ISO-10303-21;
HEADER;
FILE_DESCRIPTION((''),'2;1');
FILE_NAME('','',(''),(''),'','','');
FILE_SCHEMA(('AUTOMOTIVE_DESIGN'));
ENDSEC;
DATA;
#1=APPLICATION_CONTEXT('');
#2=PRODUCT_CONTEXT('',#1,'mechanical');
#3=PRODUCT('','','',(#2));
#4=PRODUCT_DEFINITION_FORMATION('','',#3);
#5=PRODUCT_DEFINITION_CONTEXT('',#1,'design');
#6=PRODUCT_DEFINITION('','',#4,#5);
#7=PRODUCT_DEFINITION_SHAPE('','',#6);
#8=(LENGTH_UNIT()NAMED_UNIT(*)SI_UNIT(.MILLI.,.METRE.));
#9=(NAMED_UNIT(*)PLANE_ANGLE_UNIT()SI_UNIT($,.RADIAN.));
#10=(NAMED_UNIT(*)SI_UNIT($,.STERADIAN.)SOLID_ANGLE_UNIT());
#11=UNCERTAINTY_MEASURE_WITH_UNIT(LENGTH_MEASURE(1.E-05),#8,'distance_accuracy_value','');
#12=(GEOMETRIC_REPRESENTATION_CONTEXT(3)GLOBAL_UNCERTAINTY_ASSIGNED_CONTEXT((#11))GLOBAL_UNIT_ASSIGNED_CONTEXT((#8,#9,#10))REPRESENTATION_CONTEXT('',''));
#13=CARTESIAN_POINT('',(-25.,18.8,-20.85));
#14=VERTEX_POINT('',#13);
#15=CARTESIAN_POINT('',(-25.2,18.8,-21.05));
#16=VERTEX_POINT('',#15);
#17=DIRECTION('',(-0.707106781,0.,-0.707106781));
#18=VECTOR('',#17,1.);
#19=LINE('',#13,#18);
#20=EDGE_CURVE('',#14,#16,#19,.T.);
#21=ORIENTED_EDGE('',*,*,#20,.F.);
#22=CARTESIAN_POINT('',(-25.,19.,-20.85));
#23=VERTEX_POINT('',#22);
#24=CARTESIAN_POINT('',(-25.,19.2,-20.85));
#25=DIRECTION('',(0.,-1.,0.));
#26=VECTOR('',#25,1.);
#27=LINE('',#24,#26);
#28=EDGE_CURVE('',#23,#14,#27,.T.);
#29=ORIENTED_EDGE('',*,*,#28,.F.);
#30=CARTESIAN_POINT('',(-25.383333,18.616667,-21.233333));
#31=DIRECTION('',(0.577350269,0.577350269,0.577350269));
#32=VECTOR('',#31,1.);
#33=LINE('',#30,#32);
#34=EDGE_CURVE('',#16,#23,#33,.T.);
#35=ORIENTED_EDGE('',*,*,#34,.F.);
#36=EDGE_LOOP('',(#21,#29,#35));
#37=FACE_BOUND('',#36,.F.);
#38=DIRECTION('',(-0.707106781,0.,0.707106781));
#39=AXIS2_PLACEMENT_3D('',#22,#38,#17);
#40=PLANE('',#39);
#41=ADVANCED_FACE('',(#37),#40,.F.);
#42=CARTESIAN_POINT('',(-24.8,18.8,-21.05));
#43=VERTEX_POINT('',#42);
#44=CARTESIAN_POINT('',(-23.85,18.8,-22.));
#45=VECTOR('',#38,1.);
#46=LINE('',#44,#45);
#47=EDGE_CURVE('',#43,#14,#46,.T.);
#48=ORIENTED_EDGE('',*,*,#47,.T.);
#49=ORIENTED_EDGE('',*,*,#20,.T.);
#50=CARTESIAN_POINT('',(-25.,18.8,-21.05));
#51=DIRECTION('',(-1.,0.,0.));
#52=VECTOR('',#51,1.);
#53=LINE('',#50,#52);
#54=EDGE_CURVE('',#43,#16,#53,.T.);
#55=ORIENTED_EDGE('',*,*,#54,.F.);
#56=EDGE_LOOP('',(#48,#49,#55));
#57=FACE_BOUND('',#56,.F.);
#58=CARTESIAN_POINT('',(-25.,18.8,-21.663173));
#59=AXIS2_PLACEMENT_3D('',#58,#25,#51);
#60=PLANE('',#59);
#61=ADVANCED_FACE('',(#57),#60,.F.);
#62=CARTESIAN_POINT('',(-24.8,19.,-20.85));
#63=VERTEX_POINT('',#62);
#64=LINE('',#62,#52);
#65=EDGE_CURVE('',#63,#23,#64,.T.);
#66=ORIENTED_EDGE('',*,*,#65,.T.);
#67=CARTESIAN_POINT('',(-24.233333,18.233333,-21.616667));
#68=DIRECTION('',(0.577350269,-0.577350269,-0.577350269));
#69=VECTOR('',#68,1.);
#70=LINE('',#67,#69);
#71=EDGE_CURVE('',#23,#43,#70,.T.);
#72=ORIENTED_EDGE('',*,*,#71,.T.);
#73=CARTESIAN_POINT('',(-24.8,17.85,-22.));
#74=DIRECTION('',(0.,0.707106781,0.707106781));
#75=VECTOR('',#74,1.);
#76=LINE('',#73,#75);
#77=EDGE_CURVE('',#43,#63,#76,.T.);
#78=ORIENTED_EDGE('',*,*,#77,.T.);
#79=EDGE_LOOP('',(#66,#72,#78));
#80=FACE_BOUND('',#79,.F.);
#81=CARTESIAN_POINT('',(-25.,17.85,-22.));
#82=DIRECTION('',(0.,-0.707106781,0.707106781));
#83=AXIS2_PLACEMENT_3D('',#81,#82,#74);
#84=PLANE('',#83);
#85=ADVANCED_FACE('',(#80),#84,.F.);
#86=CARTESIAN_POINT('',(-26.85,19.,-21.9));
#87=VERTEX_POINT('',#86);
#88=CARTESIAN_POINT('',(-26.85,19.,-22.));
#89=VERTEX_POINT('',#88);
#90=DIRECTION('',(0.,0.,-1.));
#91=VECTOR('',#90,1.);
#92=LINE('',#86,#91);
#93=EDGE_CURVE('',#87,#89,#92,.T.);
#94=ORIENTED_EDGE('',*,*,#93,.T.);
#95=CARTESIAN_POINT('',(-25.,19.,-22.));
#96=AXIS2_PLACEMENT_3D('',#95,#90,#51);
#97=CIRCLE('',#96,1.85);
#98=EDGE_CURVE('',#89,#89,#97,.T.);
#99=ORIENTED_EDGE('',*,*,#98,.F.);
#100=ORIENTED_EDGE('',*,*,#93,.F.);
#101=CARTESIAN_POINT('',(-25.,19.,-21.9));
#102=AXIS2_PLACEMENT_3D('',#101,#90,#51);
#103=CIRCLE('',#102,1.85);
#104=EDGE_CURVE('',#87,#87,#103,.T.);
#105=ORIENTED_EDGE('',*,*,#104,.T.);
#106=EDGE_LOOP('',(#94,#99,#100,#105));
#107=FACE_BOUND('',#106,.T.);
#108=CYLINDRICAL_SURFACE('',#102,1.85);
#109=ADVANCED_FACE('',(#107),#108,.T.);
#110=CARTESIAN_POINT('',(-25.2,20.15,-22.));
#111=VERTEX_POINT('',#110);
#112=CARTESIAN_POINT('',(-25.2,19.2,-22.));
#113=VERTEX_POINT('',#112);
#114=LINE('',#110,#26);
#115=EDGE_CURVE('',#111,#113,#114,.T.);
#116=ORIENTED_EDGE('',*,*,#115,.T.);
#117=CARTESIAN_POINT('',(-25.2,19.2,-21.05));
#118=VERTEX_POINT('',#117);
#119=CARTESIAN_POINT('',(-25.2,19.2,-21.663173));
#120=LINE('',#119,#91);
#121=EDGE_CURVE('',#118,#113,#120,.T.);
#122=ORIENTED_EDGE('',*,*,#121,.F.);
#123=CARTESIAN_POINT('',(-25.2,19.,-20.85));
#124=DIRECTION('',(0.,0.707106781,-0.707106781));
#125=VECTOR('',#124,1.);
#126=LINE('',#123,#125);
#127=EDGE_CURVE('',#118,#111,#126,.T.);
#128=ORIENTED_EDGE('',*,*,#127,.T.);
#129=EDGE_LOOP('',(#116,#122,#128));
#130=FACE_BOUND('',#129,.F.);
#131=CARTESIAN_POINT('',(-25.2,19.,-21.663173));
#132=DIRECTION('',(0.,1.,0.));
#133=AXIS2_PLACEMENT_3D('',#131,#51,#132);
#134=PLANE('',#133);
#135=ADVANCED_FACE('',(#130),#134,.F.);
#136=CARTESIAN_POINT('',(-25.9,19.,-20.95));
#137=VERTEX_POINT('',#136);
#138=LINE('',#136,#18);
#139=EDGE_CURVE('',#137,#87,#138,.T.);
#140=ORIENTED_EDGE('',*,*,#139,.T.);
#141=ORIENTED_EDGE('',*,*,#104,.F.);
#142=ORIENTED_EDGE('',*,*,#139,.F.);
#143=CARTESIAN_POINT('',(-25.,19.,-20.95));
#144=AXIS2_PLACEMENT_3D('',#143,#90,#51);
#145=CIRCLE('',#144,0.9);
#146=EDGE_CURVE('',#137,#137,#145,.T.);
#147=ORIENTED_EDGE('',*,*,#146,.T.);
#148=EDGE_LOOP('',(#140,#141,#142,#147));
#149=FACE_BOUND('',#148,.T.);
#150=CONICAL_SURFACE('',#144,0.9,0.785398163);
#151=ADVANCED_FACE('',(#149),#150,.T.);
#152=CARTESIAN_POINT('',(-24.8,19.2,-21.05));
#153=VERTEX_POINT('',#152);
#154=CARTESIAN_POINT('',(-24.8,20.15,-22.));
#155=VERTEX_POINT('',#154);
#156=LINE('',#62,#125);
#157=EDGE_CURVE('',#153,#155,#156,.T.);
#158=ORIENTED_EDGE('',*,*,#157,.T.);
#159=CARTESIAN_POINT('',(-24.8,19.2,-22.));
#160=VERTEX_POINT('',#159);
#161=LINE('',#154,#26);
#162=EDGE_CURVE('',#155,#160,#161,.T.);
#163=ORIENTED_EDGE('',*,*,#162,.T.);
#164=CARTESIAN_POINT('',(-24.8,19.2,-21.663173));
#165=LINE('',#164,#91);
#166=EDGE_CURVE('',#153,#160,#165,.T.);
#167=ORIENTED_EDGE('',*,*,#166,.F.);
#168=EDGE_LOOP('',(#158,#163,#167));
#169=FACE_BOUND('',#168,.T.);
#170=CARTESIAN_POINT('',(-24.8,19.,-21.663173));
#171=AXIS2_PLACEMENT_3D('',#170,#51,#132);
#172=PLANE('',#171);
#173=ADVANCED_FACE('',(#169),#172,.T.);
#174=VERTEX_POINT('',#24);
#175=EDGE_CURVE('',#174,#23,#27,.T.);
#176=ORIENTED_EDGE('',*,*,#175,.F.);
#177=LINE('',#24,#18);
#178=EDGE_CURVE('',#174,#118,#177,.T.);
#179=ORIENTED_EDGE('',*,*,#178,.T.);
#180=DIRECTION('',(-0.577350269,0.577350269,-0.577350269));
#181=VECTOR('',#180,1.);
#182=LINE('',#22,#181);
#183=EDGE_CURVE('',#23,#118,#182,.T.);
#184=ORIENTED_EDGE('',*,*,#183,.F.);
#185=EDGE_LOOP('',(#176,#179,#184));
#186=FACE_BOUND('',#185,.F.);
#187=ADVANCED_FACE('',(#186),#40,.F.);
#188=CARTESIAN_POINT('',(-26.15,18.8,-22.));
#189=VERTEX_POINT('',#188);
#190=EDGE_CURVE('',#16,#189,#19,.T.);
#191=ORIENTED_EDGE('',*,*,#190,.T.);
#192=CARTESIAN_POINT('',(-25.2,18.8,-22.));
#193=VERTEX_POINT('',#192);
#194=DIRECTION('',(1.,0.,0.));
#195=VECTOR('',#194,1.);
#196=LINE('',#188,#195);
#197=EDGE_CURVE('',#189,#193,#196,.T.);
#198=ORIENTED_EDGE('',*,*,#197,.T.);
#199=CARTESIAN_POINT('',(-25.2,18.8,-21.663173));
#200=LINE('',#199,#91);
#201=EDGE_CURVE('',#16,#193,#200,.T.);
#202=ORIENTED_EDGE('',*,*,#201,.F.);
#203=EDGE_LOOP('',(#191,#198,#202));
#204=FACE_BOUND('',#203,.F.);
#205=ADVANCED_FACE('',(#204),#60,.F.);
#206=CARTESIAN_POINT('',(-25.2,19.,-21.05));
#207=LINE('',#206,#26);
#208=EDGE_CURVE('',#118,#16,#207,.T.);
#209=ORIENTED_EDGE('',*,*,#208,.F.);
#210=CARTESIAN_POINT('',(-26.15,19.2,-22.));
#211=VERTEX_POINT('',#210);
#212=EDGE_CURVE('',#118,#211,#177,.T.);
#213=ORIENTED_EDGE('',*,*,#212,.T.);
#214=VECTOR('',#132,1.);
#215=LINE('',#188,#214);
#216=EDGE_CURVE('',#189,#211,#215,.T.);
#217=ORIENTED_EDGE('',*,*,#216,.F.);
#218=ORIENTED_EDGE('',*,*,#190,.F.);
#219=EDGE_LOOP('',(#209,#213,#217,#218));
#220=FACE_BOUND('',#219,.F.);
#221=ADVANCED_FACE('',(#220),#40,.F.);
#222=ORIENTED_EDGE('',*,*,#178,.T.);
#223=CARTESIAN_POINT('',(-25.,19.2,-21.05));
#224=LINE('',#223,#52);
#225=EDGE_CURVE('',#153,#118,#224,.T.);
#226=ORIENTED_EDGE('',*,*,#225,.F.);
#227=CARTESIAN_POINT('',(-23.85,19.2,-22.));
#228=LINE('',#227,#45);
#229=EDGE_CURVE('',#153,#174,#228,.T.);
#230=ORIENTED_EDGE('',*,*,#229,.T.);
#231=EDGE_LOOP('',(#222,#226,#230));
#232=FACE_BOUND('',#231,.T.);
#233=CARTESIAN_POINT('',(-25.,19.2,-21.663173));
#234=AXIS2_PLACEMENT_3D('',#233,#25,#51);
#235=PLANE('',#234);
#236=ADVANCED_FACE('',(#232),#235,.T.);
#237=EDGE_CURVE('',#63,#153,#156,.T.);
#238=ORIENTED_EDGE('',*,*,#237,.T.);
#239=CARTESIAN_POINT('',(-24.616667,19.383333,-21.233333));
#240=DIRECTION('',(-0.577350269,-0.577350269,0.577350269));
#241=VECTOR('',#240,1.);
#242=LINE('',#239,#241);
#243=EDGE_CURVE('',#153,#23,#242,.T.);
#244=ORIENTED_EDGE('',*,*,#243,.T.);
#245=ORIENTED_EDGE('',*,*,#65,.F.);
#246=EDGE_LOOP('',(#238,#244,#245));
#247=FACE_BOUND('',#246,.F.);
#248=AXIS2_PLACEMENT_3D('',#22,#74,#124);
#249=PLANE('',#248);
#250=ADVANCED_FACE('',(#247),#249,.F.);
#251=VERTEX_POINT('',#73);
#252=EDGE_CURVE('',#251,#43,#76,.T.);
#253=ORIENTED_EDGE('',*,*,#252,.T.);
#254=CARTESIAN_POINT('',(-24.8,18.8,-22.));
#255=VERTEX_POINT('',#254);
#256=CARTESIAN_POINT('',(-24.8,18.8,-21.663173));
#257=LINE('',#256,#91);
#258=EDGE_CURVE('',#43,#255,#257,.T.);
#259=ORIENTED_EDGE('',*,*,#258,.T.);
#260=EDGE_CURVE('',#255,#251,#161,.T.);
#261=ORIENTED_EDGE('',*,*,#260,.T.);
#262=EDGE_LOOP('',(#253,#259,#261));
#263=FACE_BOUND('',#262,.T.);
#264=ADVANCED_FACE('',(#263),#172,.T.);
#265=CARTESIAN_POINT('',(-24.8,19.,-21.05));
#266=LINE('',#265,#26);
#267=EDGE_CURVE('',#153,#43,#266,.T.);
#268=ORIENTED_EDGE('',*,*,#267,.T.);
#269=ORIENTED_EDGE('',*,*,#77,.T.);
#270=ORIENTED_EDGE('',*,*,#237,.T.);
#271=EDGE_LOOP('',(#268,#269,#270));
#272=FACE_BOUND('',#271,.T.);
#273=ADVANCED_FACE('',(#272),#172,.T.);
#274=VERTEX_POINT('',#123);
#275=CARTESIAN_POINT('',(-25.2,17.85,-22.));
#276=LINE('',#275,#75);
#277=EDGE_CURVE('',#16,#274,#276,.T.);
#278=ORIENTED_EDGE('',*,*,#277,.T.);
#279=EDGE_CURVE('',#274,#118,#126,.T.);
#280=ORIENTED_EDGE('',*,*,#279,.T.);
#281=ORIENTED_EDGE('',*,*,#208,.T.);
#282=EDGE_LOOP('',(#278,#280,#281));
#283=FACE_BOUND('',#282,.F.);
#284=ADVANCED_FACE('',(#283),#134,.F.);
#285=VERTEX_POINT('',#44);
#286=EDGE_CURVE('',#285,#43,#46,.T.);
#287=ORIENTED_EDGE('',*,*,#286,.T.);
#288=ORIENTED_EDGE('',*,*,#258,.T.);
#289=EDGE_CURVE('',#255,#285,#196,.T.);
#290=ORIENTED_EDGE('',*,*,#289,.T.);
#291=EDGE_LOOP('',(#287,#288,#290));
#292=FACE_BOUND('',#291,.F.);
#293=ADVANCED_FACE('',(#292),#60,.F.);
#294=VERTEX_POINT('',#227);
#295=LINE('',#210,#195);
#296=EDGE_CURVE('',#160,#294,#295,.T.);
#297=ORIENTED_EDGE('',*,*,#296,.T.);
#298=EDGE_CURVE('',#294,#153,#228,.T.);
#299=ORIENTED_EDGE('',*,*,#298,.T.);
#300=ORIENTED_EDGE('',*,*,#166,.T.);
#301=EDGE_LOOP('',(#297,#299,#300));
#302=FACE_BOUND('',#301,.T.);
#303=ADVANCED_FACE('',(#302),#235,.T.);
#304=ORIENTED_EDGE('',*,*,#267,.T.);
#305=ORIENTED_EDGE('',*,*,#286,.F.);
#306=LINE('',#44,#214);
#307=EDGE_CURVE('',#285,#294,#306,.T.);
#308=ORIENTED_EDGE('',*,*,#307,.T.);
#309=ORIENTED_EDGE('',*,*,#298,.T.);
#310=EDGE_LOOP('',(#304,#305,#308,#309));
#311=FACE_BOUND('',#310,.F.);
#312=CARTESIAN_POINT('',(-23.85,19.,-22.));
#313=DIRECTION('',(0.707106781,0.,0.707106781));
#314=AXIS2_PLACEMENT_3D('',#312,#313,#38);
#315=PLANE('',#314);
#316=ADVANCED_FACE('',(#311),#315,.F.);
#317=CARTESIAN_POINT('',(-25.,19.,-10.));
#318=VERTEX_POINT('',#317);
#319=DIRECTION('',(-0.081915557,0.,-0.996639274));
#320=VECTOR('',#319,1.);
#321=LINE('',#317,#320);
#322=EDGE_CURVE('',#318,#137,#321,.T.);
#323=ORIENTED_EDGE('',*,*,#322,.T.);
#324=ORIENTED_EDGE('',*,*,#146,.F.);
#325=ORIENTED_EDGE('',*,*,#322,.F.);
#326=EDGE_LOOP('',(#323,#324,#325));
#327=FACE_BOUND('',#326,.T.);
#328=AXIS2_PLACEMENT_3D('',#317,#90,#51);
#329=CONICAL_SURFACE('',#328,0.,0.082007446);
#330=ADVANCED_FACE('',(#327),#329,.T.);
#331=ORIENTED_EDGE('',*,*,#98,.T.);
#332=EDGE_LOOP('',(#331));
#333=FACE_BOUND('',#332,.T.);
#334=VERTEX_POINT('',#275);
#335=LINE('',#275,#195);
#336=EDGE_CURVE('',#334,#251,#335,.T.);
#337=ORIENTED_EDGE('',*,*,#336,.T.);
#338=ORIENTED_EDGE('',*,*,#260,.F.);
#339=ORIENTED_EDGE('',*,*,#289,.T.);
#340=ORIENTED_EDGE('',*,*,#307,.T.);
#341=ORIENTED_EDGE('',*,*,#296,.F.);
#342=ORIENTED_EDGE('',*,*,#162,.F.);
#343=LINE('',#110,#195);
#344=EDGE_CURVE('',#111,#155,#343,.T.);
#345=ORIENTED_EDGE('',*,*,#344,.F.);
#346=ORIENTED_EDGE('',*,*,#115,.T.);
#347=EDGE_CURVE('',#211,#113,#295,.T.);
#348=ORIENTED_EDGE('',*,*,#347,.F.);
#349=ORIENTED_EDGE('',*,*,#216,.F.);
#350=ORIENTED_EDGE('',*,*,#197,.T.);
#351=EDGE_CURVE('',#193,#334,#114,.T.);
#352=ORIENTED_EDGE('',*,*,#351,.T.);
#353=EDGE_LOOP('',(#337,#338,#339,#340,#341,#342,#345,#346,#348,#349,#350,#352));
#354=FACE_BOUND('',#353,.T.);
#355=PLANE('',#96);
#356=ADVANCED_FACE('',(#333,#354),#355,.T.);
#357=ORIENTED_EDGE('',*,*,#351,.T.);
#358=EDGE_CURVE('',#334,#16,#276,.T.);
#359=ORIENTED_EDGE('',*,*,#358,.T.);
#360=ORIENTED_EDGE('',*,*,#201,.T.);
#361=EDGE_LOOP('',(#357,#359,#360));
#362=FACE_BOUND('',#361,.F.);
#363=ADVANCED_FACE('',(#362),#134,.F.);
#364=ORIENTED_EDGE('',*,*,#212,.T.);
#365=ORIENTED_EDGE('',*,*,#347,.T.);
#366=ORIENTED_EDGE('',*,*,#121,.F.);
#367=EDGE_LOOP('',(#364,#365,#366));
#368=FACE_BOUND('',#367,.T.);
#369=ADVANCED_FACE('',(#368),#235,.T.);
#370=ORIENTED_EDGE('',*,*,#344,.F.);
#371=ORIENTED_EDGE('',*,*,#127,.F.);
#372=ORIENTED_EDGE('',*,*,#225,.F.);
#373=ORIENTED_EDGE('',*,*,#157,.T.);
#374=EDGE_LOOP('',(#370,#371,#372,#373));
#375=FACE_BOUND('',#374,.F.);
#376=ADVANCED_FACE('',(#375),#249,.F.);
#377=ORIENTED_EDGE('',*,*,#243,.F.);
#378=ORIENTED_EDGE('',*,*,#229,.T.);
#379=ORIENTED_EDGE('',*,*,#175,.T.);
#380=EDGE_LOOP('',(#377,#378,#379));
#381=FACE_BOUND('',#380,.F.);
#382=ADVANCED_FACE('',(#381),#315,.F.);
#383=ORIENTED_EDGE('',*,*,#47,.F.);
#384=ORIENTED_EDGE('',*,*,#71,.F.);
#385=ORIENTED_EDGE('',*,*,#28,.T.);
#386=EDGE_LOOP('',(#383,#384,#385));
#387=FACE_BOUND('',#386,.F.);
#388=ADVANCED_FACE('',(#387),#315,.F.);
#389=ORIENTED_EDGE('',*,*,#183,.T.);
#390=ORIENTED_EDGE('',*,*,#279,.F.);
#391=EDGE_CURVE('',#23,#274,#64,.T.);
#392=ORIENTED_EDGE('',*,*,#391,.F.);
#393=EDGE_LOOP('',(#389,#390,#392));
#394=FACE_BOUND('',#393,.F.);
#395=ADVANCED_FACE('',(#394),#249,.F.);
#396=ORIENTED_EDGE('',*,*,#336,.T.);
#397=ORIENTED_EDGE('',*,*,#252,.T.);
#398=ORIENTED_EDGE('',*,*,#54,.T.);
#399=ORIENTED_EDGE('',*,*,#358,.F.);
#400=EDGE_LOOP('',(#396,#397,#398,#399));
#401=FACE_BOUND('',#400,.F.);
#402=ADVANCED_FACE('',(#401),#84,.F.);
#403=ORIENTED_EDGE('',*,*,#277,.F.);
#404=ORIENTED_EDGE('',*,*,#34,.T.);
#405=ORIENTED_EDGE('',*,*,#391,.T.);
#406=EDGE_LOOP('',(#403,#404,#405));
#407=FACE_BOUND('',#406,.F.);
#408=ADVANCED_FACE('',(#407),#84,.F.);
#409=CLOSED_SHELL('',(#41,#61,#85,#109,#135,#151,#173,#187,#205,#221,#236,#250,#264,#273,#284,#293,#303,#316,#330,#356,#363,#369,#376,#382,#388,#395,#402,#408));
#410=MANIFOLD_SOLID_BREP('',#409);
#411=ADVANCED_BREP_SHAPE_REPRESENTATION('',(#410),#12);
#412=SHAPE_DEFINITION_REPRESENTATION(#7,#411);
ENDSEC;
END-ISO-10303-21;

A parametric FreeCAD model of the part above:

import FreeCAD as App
import Part
import Sketcher
from FreeCAD import Vector
Q = App.Units.Quantity

doc = App.newDocument("Part")
body = doc.addObject("PartDesign::Body", "Body")

sketch1 = body.newObject("Sketcher::SketchObject", "Sketch")
sketch1.AttachmentSupport = (doc.getObject("XZ_Plane"), [""])
sketch1.MapMode = "FlatFace"
sketch1.addGeometry([
    Part.LineSegment(Vector(0, 0, 0), Vector(0, -12, 0)),
    Part.LineSegment(Vector(0, -12, 0), Vector(0.9, -1.05, 0)),
    Part.LineSegment(Vector(0.9, -1.05, 0), Vector(1.85, -0.1, 0)),
    Part.LineSegment(Vector(1.85, -0.1, 0), Vector(1.85, 0, 0)),
    Part.LineSegment(Vector(1.85, 0, 0), Vector(0, 0, 0)),
], False)
sketch1.addConstraint([
    Sketcher.Constraint("Coincident", 0, 2, 1, 1),
    Sketcher.Constraint("Coincident", 1, 2, 2, 1),
    Sketcher.Constraint("Coincident", 2, 2, 3, 1),
    Sketcher.Constraint("Coincident", 3, 2, 4, 1),
    Sketcher.Constraint("Coincident", 4, 2, 0, 1),
    Sketcher.Constraint("Vertical", 0),
    Sketcher.Constraint("Vertical", 3),
    Sketcher.Constraint("Horizontal", 4),
    Sketcher.Constraint("Coincident", 4, 2, -1, 1),
    Sketcher.Constraint("DistanceY", 0, 2, 0, 1, Q("12 mm")),
    Sketcher.Constraint("Angle", 2, Q("45 deg")),
    Sketcher.Constraint("DistanceY", 3, 1, 3, 2, Q("0.1 mm")),
    Sketcher.Constraint("DistanceX", 4, 2, 4, 1, Q("1.85 mm")),
    Sketcher.Constraint("DistanceX", -1, 1, 1, 2, Q("0.9 mm")),
])
revolution = body.newObject("PartDesign::Revolution", "Revolution")
revolution.Profile = sketch1
revolution.ReferenceAxis = (sketch1, ["V_Axis"])
revolution.Angle = 360

sketch2 = body.newObject("Sketcher::SketchObject", "Sketch001")
sketch2.AttachmentSupport = (doc.getObject("XZ_Plane"), [""])
sketch2.MapMode = "FlatFace"
sketch2.addGeometry([
    Part.LineSegment(Vector(-1.15, 0, 0), Vector(0, -1.15, 0)),
    Part.LineSegment(Vector(0, -1.15, 0), Vector(1.15, 0, 0)),
    Part.LineSegment(Vector(1.15, 0, 0), Vector(-1.15, 0, 0)),
], False)
sketch2.addConstraint([
    Sketcher.Constraint("Coincident", 0, 2, 1, 1),
    Sketcher.Constraint("Coincident", 1, 2, 2, 1),
    Sketcher.Constraint("Coincident", 2, 2, 0, 1),
    Sketcher.Constraint("Horizontal", 2),
    Sketcher.Constraint("Symmetric", 1, 2, 2, 2, -1, 1),
    Sketcher.Constraint("PointOnObject", 0, 2, -2),
    Sketcher.Constraint("Perpendicular", 0, 1),
    Sketcher.Constraint("DistanceX", 2, 2, 2, 1, Q("2.3 mm")),
])
pocket1 = body.newObject("PartDesign::Pocket", "Pocket")
pocket1.Profile = sketch2
pocket1.Length = 0.4
pocket1.Midplane = True
doc.recompute()

polarpattern = body.newObject("PartDesign::PolarPattern", "PolarPattern")
polarpattern.Originals = [pocket1]
polarpattern.Axis = (doc.getObject("Z_Axis"), [""])
polarpattern.Angle = 90
polarpattern.Occurrences = 2
body.Tip = polarpattern
body2 = doc.addObject("PartDesign::Body", "Body001")
doc.recompute()

body.Placement = App.Placement(Vector(-25, 19, -22), App.Rotation(Vector(0, 1, 0), 180))
boolean = body2.newObject("PartDesign::Boolean", "Boolean")
boolean.Type = "Fuse"
boolean.addObjects([body])

doc.recompute()
